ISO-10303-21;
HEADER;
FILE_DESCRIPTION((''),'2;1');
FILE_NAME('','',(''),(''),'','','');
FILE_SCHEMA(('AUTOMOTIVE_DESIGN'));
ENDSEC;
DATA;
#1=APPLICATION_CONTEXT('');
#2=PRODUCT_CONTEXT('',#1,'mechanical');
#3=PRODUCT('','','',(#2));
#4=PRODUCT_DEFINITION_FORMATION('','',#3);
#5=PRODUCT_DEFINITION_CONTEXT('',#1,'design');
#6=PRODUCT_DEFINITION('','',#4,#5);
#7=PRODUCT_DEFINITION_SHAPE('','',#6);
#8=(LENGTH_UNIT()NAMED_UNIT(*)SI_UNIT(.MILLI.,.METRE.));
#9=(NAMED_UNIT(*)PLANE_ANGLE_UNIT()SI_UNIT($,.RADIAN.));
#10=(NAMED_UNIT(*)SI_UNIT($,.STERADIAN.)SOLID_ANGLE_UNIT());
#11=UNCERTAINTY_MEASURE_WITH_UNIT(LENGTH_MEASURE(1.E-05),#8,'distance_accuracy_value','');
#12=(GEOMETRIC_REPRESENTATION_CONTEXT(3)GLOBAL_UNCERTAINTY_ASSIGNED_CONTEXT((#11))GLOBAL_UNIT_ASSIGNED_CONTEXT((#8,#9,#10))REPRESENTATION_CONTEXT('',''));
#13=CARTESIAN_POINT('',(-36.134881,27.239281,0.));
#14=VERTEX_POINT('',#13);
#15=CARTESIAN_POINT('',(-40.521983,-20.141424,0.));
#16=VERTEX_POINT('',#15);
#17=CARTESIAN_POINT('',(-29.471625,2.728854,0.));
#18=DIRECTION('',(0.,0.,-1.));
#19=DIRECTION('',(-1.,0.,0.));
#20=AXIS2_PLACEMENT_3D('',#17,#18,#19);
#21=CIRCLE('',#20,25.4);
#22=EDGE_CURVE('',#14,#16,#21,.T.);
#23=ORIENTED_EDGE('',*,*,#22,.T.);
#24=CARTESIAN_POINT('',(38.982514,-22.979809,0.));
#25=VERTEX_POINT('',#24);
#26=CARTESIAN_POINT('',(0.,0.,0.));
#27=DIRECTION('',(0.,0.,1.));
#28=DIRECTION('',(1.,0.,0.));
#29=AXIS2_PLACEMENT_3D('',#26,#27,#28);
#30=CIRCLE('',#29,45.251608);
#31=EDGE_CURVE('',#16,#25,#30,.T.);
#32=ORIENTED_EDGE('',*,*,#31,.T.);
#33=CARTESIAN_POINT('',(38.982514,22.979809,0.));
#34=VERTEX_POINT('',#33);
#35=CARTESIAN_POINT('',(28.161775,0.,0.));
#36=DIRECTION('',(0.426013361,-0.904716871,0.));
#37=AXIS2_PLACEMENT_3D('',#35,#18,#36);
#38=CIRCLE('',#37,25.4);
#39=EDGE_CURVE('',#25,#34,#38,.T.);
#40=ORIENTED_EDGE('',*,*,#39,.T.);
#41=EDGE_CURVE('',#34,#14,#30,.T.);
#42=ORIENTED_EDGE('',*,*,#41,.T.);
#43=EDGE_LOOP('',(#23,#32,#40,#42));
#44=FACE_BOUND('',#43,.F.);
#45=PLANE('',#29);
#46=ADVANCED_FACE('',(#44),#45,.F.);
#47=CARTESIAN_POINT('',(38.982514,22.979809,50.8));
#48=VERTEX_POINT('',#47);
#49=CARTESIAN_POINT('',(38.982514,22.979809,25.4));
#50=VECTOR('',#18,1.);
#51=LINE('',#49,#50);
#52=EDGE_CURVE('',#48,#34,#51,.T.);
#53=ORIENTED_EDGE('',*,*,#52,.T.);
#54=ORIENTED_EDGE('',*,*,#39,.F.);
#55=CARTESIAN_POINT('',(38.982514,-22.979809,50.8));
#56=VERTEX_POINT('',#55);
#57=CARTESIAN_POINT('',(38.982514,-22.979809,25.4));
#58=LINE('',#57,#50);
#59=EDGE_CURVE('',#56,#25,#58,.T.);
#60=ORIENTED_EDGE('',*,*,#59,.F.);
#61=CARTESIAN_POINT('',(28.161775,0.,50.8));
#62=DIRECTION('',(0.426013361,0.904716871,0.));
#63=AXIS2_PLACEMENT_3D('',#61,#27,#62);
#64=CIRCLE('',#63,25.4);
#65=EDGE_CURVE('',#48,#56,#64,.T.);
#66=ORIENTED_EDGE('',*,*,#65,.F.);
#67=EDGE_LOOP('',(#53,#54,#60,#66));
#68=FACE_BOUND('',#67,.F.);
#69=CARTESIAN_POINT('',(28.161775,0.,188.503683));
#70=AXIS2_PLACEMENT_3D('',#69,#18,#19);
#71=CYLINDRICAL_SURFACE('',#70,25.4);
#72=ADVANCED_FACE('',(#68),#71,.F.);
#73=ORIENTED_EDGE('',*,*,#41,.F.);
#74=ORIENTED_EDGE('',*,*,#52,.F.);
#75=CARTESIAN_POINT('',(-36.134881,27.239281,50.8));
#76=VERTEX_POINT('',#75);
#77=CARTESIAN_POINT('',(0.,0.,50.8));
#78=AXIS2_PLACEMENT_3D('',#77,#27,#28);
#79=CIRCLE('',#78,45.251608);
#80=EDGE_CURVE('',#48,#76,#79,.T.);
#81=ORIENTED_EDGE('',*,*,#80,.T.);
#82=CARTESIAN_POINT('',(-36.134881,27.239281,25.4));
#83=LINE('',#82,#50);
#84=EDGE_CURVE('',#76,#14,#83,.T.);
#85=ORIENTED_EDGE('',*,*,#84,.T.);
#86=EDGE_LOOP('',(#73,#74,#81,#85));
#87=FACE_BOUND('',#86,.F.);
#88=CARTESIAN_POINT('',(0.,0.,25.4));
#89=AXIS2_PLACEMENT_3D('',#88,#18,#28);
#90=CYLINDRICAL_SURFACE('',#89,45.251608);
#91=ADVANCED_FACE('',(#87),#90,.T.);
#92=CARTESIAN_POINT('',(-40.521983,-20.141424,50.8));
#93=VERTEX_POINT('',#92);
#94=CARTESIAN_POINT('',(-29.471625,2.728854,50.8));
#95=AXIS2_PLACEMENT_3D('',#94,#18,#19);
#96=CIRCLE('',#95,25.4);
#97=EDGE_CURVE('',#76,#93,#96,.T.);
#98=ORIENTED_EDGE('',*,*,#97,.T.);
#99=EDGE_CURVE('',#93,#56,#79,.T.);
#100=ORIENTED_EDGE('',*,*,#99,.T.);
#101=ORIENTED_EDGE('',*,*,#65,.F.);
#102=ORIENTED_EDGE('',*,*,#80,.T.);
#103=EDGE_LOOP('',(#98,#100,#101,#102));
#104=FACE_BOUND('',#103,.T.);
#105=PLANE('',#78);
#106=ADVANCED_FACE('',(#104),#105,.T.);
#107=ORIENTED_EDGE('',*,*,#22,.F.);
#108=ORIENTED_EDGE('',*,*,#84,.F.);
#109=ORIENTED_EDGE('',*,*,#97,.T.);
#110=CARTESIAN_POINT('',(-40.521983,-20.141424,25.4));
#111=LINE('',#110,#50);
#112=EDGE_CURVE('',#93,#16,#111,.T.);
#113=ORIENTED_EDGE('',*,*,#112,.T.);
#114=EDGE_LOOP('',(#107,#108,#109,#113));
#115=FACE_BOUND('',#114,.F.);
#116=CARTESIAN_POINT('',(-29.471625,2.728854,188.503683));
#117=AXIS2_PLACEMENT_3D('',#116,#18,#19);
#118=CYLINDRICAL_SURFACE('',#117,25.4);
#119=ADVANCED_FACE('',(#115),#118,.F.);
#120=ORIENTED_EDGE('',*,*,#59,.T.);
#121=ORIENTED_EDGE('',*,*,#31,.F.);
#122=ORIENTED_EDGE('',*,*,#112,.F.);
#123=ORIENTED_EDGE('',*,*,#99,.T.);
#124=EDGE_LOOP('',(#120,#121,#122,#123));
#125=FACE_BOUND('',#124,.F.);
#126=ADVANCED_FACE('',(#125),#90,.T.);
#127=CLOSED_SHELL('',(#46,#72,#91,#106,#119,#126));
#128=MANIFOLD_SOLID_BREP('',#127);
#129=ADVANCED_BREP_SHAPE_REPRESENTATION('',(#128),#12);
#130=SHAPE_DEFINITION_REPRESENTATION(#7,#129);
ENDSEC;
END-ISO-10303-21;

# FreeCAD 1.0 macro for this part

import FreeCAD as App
import Part
import Sketcher

V = App.Vector
Q = App.Units.Quantity

doc = App.newDocument("Part")
body = doc.addObject("PartDesign::Body", "Body")

# Sketch on XY plane
sketch1 = body.newObject("Sketcher::SketchObject", "Sketch")
sketch1.AttachmentSupport = (doc.getObject("XY_Plane"), [""])
sketch1.MapMode = "FlatFace"
sketch1.addGeometry(Part.Circle(V(0, 0, 0), V(0, 0, 1), 45.251608), False)
sketch1.addConstraint([
    Sketcher.Constraint("Coincident", 0, 3, -1, 1),
    Sketcher.Constraint("Diameter", 0, Q("90.503216 mm")),
])
pad1 = body.newObject("PartDesign::Pad", "Pad")
pad1.Profile = sketch1
pad1.Length = Q("1 in")

# Sketch on XY plane
sketch2 = body.newObject("Sketcher::SketchObject", "Sketch001")
sketch2.AttachmentSupport = (doc.getObject("XY_Plane"), [""])
sketch2.MapMode = "FlatFace"
sketch2.AttachmentOffset = App.Placement(V(0, 0, 1 * 25.4), App.Rotation())
sketch2.addGeometry(Part.Circle(V(0, 0, 0), V(0, 0, 1), 45.251608), False)
sketch2.addConstraint([
    Sketcher.Constraint("Coincident", 0, 3, -1, 1),
    Sketcher.Constraint("Diameter", 0, Q("90.503216 mm")),
])
pad2 = body.newObject("PartDesign::Pad", "Pad001")
pad2.Profile = sketch2
pad2.Length = Q("1 in")

# Sketch on XY plane
sketch3 = body.newObject("Sketcher::SketchObject", "Sketch002")
sketch3.AttachmentSupport = (doc.getObject("XY_Plane"), [""])
sketch3.MapMode = "FlatFace"
sketch3.AttachmentOffset = App.Placement(V(0, 0, 2 * 25.4), App.Rotation())
sketch3.addGeometry([
    Part.Circle(V(-29.471625, 2.728854, 0), V(0, 0, 1), 25.4),
    Part.Circle(V(28.161775, 0, 0), V(0, 0, 1), 25.4),
], False)
sketch3.addConstraint([
    Sketcher.Constraint("Equal", 0, 1),
    Sketcher.Constraint("PointOnObject", 1, 3, -1),
    Sketcher.Constraint("Diameter", 0, Q("2 in")),
    Sketcher.Constraint("DistanceX", 0, 3, -1, 1, Q("1.1603002 in")),
    Sketcher.Constraint("DistanceX", 0, 3, 1, 3, Q("57.6334 mm")),
    Sketcher.Constraint("DistanceY", -1, 1, 0, 3, Q("2.728854 mm")),
])
doc.recompute()
hole = body.newObject("PartDesign::Hole", "Hole")
hole.Profile = sketch3
hole.ThreadType = "None"
hole.Diameter = Q("2 in")
hole.DepthType = "ThroughAll"

doc.recompute()
